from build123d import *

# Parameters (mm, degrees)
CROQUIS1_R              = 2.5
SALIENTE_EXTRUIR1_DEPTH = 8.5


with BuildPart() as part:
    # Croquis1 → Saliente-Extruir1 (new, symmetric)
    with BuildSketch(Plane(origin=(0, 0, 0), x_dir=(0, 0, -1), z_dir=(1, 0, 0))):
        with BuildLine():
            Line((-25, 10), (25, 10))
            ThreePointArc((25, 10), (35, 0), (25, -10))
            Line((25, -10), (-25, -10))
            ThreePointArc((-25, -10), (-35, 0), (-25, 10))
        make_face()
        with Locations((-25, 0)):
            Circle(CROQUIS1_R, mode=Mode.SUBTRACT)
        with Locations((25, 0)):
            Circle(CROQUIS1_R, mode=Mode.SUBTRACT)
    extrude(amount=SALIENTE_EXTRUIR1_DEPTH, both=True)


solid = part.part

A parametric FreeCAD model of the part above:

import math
import FreeCAD as App
import Part
import Sketcher
Q = App.Units.Quantity

doc = App.newDocument("Part")
body = doc.addObject("PartDesign::Body", "Body")

sketch1 = body.newObject("Sketcher::SketchObject", "Sketch")
sketch1.AttachmentSupport = (doc.getObject("YZ_Plane"), [""])
sketch1.MapMode = "FlatFace"
sketch1.addGeometry(Part.LineSegment(App.Vector(10, -25, 0), App.Vector(10, 25, 0)), False)
sketch1.addGeometry(Part.ArcOfCircle(Part.Circle(App.Vector(0, 25, 0), App.Vector(0, 0, 1), 10), math.radians(0), math.radians(180)), False)
sketch1.addGeometry(Part.LineSegment(App.Vector(-10, 25, 0), App.Vector(-10, -25, 0)), False)
sketch1.addGeometry(Part.ArcOfCircle(Part.Circle(App.Vector(0, -25, 0), App.Vector(0, 0, 1), 10), math.radians(180), math.radians(360)), False)
sketch1.addGeometry(Part.Circle(App.Vector(0, -25, 0), App.Vector(0, 0, 1), 2.5), False)
sketch1.addGeometry(Part.Circle(App.Vector(0, 25, 0), App.Vector(0, 0, 1), 2.5), False)
sketch1.addConstraint(Sketcher.Constraint("Tangent", 0, 2, 1, 1))
sketch1.addConstraint(Sketcher.Constraint("Tangent", 1, 2, 2, 1))
sketch1.addConstraint(Sketcher.Constraint("Tangent", 2, 2, 3, 1))
sketch1.addConstraint(Sketcher.Constraint("Tangent", 3, 2, 0, 1))
sketch1.addConstraint(Sketcher.Constraint("Vertical", 0))
sketch1.addConstraint(Sketcher.Constraint("Vertical", 2))
sketch1.addConstraint(Sketcher.Constraint("Coincident", 4, 3, 3, 3))
sketch1.addConstraint(Sketcher.Constraint("Coincident", 5, 3, 1, 3))
sketch1.addConstraint(Sketcher.Constraint("Equal", 4, 5))
sketch1.addConstraint(Sketcher.Constraint("Symmetric", 1, 3, 3, 3, -1, 1))
sketch1.addConstraint(Sketcher.Constraint("Diameter", 4, Q("5 mm")))
sketch1.addConstraint(Sketcher.Constraint("Radius", 1, Q("10 mm")))
sketch1.addConstraint(Sketcher.Constraint("DistanceY", 0, 1, 0, 2, Q("50 mm")))
pad1 = body.newObject("PartDesign::Pad", "Pad")
pad1.Profile = sketch1
pad1.Length = 17
pad1.Midplane = True

doc.recompute()
